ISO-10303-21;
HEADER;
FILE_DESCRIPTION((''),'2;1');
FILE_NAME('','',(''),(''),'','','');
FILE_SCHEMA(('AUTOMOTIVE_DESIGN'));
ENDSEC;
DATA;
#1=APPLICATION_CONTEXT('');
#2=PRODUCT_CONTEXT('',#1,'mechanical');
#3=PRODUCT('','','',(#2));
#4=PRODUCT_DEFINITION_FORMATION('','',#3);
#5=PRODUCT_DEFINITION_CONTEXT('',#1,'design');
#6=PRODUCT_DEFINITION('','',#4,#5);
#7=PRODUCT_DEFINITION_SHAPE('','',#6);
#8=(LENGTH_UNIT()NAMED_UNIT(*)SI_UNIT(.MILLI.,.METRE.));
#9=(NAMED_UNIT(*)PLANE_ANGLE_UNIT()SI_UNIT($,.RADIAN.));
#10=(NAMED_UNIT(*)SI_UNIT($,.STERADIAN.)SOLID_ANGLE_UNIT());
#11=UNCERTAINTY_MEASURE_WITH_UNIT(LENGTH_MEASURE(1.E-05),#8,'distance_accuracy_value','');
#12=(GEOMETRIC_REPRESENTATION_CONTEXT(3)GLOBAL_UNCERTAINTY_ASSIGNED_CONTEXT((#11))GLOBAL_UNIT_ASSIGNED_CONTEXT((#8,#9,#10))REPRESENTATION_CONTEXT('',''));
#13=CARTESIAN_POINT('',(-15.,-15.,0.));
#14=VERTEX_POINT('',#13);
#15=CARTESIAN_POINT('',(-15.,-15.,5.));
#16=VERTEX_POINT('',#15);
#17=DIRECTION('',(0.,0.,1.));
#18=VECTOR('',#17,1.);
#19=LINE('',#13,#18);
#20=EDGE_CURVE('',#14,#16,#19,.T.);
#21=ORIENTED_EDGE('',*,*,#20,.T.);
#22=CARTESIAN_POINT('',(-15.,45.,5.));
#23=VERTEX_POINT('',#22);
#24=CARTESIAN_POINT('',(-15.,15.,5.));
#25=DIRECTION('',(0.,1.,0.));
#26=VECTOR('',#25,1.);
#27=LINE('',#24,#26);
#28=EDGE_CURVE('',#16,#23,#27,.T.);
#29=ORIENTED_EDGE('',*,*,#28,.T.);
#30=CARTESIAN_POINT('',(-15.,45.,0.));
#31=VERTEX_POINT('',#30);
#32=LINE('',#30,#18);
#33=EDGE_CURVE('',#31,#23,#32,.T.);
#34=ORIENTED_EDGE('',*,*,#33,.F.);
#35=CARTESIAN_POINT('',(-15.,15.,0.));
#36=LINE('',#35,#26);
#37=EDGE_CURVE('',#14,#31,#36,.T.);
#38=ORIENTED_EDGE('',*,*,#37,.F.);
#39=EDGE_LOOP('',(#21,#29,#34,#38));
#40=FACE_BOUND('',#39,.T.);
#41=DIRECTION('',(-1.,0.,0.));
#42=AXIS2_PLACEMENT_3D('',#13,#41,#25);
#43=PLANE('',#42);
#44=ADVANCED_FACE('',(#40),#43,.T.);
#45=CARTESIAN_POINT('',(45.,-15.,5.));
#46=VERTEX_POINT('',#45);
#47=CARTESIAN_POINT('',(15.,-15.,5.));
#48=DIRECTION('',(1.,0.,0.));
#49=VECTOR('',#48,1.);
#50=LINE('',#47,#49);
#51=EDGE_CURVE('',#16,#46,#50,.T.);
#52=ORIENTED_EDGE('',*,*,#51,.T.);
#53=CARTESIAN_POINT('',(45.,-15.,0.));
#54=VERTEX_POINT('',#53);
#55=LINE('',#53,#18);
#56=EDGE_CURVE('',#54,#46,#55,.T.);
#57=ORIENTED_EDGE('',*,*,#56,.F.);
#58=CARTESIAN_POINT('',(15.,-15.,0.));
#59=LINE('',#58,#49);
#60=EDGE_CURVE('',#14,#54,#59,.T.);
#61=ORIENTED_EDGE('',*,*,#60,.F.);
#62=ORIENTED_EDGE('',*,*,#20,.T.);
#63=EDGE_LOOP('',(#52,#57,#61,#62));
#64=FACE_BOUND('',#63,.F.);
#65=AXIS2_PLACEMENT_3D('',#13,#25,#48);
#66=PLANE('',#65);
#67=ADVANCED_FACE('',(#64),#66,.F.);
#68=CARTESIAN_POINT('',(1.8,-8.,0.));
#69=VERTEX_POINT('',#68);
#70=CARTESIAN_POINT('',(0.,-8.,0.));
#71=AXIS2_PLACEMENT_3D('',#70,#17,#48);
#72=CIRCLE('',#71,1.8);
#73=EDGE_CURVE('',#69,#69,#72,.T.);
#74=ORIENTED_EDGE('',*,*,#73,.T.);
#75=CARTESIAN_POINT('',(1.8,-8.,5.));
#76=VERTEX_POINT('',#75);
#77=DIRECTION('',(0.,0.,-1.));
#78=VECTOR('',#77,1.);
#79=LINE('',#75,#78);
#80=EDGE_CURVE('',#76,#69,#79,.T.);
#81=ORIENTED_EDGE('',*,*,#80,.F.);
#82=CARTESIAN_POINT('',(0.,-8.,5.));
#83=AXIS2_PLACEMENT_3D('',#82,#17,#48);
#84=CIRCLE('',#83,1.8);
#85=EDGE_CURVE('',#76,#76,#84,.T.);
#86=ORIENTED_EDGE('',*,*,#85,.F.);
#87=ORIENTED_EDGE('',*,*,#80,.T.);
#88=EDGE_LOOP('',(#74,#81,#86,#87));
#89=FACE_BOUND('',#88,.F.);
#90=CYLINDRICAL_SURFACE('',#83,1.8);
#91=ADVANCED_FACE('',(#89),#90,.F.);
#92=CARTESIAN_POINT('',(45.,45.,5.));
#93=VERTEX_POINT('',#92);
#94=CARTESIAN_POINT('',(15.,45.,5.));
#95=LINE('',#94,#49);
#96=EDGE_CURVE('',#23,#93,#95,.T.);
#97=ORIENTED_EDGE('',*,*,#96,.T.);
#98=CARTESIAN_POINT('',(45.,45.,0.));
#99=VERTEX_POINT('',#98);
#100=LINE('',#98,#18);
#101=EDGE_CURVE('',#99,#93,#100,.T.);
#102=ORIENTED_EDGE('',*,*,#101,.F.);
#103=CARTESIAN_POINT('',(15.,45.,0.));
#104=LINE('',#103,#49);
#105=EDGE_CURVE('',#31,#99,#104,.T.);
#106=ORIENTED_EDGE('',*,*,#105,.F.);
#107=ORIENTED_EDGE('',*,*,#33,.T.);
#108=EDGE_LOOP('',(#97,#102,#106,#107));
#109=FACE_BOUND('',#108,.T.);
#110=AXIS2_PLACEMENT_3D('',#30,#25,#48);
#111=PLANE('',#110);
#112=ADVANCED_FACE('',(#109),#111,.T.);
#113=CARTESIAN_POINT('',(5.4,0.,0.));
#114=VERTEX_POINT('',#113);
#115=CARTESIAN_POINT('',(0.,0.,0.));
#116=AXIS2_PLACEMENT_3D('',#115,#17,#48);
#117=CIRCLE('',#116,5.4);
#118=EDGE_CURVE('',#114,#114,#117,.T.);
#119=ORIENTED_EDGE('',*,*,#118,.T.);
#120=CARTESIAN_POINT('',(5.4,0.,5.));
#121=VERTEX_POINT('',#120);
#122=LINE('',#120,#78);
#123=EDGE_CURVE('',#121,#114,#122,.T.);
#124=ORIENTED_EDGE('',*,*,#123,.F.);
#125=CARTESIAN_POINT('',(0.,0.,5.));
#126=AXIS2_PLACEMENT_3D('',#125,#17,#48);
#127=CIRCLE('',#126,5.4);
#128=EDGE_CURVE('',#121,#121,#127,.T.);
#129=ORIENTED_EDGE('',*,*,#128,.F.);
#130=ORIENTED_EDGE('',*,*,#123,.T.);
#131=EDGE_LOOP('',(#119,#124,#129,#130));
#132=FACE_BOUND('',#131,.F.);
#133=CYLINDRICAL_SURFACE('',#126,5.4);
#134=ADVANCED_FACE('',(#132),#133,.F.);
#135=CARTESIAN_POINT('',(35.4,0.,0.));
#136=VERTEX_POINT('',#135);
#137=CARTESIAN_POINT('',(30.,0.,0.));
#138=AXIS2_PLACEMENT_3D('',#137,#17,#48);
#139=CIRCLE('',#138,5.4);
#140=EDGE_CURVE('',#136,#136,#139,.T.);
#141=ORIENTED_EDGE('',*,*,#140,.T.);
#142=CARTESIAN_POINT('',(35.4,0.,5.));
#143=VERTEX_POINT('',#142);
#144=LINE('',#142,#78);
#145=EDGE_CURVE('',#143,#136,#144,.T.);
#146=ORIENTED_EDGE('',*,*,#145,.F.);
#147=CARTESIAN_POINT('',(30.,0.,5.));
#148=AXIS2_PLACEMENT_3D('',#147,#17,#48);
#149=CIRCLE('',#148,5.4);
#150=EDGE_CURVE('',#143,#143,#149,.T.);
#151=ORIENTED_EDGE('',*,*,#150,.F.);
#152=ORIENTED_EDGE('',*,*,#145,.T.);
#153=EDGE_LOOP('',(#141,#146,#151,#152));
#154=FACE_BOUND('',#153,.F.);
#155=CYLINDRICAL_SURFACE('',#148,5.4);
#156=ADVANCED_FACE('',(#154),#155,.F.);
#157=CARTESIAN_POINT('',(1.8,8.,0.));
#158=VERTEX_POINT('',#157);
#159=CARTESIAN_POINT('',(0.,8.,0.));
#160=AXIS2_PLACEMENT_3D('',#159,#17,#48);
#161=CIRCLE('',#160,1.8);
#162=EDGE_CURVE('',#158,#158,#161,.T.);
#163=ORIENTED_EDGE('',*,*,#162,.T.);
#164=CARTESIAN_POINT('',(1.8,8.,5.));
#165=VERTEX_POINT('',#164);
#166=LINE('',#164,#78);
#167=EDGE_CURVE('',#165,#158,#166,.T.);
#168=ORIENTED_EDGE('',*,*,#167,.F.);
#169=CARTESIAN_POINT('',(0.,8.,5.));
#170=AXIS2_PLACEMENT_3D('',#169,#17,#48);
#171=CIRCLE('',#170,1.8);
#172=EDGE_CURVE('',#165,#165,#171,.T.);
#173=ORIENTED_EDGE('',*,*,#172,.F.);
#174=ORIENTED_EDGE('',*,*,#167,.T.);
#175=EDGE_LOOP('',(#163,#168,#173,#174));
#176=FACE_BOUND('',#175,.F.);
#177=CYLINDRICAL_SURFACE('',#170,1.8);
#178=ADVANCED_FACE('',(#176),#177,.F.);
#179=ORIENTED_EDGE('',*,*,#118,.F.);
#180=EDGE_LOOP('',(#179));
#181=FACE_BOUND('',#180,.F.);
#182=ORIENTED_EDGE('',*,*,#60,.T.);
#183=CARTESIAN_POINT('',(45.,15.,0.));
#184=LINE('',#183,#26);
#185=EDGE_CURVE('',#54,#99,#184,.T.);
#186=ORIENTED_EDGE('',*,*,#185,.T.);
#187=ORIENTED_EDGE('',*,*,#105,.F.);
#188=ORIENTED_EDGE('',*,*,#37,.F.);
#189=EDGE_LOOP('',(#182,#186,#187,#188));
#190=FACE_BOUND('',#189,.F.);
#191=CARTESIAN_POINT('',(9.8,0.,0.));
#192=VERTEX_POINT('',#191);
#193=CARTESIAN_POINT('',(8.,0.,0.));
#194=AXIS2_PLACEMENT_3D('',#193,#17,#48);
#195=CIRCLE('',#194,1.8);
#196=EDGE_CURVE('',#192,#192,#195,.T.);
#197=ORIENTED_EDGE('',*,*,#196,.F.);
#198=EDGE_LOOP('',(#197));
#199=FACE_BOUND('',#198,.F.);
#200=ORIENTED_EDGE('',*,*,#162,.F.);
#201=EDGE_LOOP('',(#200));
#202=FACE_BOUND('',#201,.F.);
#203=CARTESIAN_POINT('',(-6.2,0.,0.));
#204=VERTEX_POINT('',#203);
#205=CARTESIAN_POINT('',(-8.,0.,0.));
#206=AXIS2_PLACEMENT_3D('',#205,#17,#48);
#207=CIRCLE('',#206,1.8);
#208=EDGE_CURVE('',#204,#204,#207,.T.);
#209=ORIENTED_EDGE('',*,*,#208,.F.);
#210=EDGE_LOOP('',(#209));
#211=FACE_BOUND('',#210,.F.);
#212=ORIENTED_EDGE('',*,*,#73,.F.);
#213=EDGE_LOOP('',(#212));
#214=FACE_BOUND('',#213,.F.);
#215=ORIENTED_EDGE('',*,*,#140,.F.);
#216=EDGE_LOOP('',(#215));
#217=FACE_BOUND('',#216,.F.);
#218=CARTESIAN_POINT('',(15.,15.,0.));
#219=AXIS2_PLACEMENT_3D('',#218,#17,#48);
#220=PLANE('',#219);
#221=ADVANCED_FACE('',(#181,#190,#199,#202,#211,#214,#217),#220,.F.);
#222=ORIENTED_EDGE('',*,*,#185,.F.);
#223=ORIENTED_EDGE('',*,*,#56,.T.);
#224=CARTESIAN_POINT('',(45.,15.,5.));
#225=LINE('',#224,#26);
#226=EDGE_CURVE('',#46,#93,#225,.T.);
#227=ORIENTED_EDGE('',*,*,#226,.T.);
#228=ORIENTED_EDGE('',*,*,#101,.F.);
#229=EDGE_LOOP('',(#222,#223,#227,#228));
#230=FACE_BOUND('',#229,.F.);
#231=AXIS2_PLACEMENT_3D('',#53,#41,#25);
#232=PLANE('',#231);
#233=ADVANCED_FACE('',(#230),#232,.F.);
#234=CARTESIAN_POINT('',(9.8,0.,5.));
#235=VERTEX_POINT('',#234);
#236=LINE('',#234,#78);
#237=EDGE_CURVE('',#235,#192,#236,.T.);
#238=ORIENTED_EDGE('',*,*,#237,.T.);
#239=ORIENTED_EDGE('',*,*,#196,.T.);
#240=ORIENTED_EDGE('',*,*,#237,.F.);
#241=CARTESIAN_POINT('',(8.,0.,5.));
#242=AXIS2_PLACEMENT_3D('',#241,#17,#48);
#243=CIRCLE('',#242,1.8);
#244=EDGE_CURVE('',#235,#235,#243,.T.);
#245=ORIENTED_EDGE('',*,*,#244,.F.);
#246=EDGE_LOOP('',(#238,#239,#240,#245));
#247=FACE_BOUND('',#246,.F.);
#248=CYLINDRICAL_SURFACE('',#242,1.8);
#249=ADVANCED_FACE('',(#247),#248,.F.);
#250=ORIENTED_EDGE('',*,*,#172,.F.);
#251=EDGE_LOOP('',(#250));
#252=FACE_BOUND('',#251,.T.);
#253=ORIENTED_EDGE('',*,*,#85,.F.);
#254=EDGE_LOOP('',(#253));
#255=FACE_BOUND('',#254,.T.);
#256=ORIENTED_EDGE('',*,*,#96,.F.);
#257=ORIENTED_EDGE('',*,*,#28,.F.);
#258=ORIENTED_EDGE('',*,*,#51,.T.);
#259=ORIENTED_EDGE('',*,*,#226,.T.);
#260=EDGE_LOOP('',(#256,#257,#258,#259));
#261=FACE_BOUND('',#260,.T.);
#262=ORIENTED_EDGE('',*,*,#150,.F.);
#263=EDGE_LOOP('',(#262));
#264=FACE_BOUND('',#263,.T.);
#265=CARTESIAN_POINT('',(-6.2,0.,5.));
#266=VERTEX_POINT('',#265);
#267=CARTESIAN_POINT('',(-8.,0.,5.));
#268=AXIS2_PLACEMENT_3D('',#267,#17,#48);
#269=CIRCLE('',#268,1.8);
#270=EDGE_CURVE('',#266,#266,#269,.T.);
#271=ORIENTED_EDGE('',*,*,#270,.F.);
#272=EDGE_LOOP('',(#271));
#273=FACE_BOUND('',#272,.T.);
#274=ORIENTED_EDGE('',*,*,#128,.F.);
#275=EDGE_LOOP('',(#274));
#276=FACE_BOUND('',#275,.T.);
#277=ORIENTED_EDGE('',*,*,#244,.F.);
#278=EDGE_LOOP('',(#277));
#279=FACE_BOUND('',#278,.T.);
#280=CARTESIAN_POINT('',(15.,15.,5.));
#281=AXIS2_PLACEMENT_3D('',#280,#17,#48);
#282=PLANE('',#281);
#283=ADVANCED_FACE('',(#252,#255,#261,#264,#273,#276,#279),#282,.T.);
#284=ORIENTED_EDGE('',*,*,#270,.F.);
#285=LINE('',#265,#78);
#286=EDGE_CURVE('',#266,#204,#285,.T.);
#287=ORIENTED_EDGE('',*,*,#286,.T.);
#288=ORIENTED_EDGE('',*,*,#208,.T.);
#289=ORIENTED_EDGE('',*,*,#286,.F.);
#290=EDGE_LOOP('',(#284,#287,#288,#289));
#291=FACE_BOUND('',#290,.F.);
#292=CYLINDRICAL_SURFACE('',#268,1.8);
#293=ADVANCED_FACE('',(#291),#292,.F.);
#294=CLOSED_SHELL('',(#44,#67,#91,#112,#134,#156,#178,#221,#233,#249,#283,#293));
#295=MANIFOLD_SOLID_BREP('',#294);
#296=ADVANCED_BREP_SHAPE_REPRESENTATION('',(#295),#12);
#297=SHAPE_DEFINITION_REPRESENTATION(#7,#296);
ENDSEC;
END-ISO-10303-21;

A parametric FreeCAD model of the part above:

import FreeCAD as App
import Part
import Sketcher
from FreeCAD import Vector
Q = App.Units.Quantity

doc = App.newDocument("Part")
params = doc.addObject("Spreadsheet::Sheet", "Params")
for row, (alias, value) in enumerate([
    ("sketch1_width", "60 mm"),
    ("pad1_length", "5 mm"),
    ("sketch2_diameter", "3.6 mm"),
    ("sketch2_diameter2", "10.8 mm"),
    ("pocket1_length", "15 mm"),
], start=1):
    params.set(f"A{row}", alias)
    params.set(f"B{row}", "=" + value)
    params.setAlias(f"B{row}", alias)

body = doc.addObject("PartDesign::Body", "Body")

# Sketch on XY plane
sketch1 = body.newObject("Sketcher::SketchObject", "Sketch")
sketch1.AttachmentSupport = (doc.getObject("XY_Plane"), [""])
sketch1.MapMode = "FlatFace"
sketch1.addGeometry([
    Part.LineSegment(Vector(-15, 45, 0), Vector(-15, -15, 0)),
    Part.LineSegment(Vector(-15, -15, 0), Vector(45, -15, 0)),
    Part.LineSegment(Vector(45, -15, 0), Vector(45, 45, 0)),
    Part.LineSegment(Vector(45, 45, 0), Vector(-15, 45, 0)),
], False)
sketch1.addConstraint([
    Sketcher.Constraint("Coincident", 0, 2, 1, 1),
    Sketcher.Constraint("Coincident", 1, 2, 2, 1),
    Sketcher.Constraint("Coincident", 2, 2, 3, 1),
    Sketcher.Constraint("Coincident", 3, 2, 0, 1),
    Sketcher.Constraint("Vertical", 0),
    Sketcher.Constraint("Horizontal", 1),
    Sketcher.Constraint("Vertical", 2),
    Sketcher.Constraint("Horizontal", 3),
    Sketcher.Constraint("Equal", 3, 0),
    Sketcher.Constraint("DistanceX", 1, 1, 1, 2, Q("60 mm")),
    Sketcher.Constraint("DistanceX", 0, 2, -1, 1, Q("15 mm")),
    Sketcher.Constraint("DistanceY", 0, 2, -1, 1, Q("15 mm")),
])
sketch1.setExpression("Constraints[9]", "Params.sketch1_width")
pad1 = body.newObject("PartDesign::Pad", "Pad")
pad1.Profile = sketch1
pad1.setExpression("Length", "Params.pad1_length")

# Sketch on XY plane
sketch2 = body.newObject("Sketcher::SketchObject", "Sketch001")
sketch2.AttachmentSupport = (doc.getObject("XY_Plane"), [""])
sketch2.MapMode = "FlatFace"
sketch2.AttachmentOffset = App.Placement(Vector(0, 0, 5), App.Rotation())
sketch2.addGeometry([
    Part.Circle(Vector(-8, 0, 0), Vector(0, 0, 1), 1.8),  # 0
    Part.Circle(Vector(0, -8, 0), Vector(0, 0, 1), 1.8),  # 1
    Part.Circle(Vector(0, 8, 0), Vector(0, 0, 1), 1.8),  # 2
    Part.Circle(Vector(8, 0, 0), Vector(0, 0, 1), 1.8),  # 3
    Part.Circle(Vector(0, 0, 0), Vector(0, 0, 1), 5.4),  # 4
    Part.Circle(Vector(30, 0, 0), Vector(0, 0, 1), 5.4),  # 5
], False)
sketch2.addConstraint([
    Sketcher.Constraint("Coincident", 4, 3, -1, 1),
    Sketcher.Constraint("Equal", 0, 1),
    Sketcher.Constraint("Equal", 1, 2),
    Sketcher.Constraint("Equal", 2, 3),
    Sketcher.Constraint("Equal", 4, 5),
    Sketcher.Constraint("Symmetric", 1, 3, 2, 3, -1, 1),
    Sketcher.Constraint("Symmetric", 0, 3, 3, 3, -1, 1),
    Sketcher.Constraint("PointOnObject", 0, 3, -1),
    Sketcher.Constraint("PointOnObject", 1, 3, -2),
    Sketcher.Constraint("PointOnObject", 5, 3, -1),
    Sketcher.Constraint("Diameter", 0, Q("3.6 mm")),
    Sketcher.Constraint("Diameter", 4, Q("10.8 mm")),
    Sketcher.Constraint("DistanceX", 0, 3, -1, 1, Q("8 mm")),
    Sketcher.Constraint("DistanceY", 1, 3, -1, 1, Q("8 mm")),
    Sketcher.Constraint("DistanceX", -1, 1, 5, 3, Q("30 mm")),
])
sketch2.setExpression("Constraints[10]", "Params.sketch2_diameter")
sketch2.setExpression("Constraints[11]", "Params.sketch2_diameter2")
pocket1 = body.newObject("PartDesign::Pocket", "Pocket")
pocket1.Profile = sketch2
pocket1.setExpression("Length", "Params.pocket1_length")

doc.recompute()
